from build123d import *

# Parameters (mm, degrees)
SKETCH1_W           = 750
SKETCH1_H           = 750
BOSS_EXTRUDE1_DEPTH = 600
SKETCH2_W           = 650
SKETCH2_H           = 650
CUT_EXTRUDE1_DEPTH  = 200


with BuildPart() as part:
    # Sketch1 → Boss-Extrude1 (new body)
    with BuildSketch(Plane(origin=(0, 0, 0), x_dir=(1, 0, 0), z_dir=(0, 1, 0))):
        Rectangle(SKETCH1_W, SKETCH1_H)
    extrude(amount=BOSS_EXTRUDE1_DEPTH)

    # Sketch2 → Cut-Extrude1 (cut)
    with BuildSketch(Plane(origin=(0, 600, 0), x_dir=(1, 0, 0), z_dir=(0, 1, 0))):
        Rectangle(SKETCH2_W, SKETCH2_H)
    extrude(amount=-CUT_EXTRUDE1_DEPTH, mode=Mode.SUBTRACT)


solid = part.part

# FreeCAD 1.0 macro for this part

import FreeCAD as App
import Part
import Sketcher
from FreeCAD import Vector


def add_polygon(sketch, points):
    """Adds a closed chain of lines whose ends are joined by coincident constraints."""
    first, n = sketch.GeometryCount, len(points)
    for a, b in zip(points, points[1:] + points[:1]):
        sketch.addGeometry(Part.LineSegment(App.Vector(*a, 0), App.Vector(*b, 0)), False)
    for i in range(n):
        sketch.addConstraint(Sketcher.Constraint("Coincident", first + i, 2, first + (i + 1) % n, 1))

doc = App.newDocument("Part")
body = doc.addObject("PartDesign::Body", "Body")

sketch1 = body.newObject("Sketcher::SketchObject", "Sketch")
sketch1.AttachmentSupport = (doc.getObject("XZ_Plane"), [""])
sketch1.MapMode = "FlatFace"
add_polygon(sketch1, [(-375, -375), (-375, 375), (375, 375), (375, -375)])
sketch1.addConstraint([
    Sketcher.Constraint("Vertical", 0),
    Sketcher.Constraint("Horizontal", 1),
    Sketcher.Constraint("Vertical", 2),
    Sketcher.Constraint("Horizontal", 3),
    Sketcher.Constraint("Symmetric", 0, 2, 2, 2, -1, 1),
    Sketcher.Constraint("Equal", 3, 0),
    Sketcher.Constraint("DistanceX", 1, 1, 1, 2, 750.0),
])
pad1 = body.newObject("PartDesign::Pad", "Pad")
pad1.Profile = sketch1
pad1.Length = 600
pad1.Reversed = True

sketch2 = body.newObject("Sketcher::SketchObject", "Sketch001")
sketch2.AttachmentSupport = (doc.getObject("XZ_Plane"), [""])
sketch2.MapMode = "FlatFace"
sketch2.AttachmentOffset = App.Placement(Vector(0, 0, -600), App.Rotation())
add_polygon(sketch2, [(-325, -325), (-325, 325), (325, 325), (325, -325)])
sketch2.addConstraint([
    Sketcher.Constraint("Vertical", 0),
    Sketcher.Constraint("Horizontal", 1),
    Sketcher.Constraint("Vertical", 2),
    Sketcher.Constraint("Horizontal", 3),
    Sketcher.Constraint("Symmetric", 0, 2, 2, 2, -1, 1),
    Sketcher.Constraint("Equal", 3, 0),
    Sketcher.Constraint("DistanceX", 1, 1, 1, 2, 650.0),
])
pocket1 = body.newObject("PartDesign::Pocket", "Pocket")
pocket1.Profile = sketch2
pocket1.Length = 200
pocket1.Reversed = True

doc.recompute()
